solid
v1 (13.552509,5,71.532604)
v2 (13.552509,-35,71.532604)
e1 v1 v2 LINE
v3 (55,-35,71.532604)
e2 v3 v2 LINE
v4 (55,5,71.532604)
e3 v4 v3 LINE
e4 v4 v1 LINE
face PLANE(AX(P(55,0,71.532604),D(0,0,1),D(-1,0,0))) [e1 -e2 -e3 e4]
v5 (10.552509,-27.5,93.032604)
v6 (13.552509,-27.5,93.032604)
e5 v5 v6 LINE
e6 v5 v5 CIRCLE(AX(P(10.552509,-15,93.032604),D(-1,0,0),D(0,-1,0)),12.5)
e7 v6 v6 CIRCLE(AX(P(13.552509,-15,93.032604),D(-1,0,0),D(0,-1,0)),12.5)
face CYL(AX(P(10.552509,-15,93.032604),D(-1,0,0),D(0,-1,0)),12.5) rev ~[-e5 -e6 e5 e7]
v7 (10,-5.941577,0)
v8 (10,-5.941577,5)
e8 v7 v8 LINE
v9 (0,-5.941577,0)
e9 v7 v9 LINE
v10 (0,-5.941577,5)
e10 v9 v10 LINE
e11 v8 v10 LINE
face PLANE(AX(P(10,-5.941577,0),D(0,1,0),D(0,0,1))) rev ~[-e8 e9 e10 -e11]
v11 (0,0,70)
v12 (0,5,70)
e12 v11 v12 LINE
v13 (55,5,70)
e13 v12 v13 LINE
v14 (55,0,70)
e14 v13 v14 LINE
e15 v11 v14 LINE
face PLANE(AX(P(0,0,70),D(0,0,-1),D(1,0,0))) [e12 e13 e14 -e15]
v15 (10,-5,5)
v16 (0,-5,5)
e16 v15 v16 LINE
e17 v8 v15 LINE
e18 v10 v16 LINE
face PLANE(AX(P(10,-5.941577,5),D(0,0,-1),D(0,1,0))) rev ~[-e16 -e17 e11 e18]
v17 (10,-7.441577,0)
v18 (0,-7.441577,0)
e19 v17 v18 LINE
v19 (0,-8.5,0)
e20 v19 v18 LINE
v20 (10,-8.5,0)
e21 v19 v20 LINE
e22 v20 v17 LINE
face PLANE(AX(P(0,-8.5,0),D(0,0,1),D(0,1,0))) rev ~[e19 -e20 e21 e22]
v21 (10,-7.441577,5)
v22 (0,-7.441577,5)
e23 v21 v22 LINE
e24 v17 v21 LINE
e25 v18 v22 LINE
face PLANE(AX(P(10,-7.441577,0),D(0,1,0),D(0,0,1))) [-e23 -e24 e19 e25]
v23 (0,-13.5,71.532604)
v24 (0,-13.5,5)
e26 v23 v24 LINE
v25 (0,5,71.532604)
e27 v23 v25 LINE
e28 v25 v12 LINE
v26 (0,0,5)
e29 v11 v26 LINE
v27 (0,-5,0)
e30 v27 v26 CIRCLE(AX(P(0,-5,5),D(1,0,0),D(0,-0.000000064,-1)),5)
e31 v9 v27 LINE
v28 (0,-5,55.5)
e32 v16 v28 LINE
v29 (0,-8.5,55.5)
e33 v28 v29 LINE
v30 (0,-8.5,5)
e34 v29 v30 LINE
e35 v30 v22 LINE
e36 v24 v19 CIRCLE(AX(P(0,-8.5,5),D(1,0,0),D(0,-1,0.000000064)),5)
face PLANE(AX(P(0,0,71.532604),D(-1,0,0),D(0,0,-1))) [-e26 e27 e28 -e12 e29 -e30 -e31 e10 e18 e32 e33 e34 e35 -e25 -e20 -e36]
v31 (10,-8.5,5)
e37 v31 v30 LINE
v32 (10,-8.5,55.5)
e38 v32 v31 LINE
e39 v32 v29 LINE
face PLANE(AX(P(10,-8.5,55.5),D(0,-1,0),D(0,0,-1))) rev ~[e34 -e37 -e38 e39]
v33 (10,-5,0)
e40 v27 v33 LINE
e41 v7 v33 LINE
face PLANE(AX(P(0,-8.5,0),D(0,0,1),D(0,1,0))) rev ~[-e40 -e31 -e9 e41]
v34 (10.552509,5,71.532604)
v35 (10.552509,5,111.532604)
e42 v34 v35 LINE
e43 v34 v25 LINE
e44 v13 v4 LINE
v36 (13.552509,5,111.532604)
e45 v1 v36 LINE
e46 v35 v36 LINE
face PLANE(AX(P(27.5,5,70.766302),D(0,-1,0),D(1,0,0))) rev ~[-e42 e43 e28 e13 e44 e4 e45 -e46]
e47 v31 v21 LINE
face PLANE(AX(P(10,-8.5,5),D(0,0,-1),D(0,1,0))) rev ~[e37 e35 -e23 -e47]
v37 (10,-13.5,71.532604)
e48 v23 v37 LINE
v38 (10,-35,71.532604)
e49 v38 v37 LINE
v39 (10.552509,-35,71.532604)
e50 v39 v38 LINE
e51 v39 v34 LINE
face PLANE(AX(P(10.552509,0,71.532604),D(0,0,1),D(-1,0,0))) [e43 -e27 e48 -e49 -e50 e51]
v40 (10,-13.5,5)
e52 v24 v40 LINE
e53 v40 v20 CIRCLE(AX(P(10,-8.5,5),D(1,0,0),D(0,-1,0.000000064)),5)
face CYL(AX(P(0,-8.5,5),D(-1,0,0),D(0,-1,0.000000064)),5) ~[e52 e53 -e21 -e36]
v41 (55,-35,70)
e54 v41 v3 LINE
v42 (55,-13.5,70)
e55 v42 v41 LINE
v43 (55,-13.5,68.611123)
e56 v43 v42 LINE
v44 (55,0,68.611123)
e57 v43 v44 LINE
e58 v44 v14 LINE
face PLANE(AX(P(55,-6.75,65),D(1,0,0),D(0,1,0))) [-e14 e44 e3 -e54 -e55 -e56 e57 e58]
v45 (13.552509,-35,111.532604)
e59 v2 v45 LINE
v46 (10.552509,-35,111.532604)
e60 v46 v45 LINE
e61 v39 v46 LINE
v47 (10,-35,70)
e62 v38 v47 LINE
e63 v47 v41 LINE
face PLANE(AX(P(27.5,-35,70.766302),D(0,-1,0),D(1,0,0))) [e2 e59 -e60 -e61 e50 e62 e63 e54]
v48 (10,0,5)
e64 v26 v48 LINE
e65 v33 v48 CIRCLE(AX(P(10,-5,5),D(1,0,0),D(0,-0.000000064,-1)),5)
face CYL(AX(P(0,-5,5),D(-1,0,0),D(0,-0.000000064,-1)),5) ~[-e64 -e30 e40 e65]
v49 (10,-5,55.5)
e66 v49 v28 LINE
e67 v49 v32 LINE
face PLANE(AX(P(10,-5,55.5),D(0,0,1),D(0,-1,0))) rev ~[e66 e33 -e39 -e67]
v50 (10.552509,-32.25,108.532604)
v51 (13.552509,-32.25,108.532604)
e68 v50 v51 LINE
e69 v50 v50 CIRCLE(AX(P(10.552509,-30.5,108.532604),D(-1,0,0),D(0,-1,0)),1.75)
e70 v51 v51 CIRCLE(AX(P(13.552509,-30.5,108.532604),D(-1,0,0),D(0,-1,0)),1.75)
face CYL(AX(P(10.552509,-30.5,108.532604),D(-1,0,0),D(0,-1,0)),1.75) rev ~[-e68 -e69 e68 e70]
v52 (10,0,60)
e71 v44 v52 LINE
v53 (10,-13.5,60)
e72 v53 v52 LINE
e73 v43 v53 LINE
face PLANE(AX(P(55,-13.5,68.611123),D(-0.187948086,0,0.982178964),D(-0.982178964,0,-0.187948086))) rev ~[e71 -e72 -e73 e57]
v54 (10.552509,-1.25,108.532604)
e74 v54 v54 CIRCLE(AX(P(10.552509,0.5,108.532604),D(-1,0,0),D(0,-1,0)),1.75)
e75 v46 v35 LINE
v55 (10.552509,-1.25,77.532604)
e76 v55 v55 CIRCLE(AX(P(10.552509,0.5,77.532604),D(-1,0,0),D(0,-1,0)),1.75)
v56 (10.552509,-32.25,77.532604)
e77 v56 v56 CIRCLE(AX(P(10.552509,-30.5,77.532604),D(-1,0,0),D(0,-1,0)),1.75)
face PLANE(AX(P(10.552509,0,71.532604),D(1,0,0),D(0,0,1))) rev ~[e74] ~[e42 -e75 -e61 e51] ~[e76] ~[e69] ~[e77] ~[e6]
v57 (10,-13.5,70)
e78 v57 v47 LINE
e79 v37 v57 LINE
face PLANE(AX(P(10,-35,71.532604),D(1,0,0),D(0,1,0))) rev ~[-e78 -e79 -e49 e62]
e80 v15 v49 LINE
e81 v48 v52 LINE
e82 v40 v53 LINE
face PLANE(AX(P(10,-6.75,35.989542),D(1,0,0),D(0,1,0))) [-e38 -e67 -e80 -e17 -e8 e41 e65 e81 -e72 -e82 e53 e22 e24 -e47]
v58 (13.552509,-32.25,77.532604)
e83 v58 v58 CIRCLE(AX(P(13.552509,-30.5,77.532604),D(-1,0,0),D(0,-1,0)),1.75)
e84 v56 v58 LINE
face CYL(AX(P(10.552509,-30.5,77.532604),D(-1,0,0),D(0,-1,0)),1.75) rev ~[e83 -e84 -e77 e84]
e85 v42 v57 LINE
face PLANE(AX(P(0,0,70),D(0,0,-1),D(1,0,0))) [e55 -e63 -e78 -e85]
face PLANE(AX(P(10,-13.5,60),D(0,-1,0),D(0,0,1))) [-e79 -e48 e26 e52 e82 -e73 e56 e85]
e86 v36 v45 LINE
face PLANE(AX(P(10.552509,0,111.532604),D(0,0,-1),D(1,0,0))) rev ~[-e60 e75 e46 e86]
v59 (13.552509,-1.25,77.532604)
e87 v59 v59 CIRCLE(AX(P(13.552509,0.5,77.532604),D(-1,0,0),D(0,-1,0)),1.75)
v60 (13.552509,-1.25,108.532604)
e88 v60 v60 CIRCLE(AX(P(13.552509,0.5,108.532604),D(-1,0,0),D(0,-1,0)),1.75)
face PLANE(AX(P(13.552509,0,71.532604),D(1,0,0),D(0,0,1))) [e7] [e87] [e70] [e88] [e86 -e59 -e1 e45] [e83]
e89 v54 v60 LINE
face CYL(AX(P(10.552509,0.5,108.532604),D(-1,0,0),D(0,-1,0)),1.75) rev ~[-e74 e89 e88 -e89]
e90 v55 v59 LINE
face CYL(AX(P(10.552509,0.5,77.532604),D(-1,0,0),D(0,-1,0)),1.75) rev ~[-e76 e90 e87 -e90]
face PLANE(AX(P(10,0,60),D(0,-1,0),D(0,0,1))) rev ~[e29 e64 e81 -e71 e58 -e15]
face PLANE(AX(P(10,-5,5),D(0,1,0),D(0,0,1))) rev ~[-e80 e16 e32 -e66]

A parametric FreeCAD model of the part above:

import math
import FreeCAD as App
import Part
import Sketcher
from FreeCAD import Vector
Q = App.Units.Quantity

doc = App.newDocument("Part")
params = doc.addObject("Spreadsheet::Sheet", "Params")
for row, (alias, value) in enumerate([
    ("sketch1_radius", "5 mm"),
    ("sketch1_height", "65 mm"),
    ("sketch1_width", "3.5 mm"),
    ("pad1_length", "10 mm"),
    ("sketch2_height", "5 mm"),
    ("sketch2_width", "3.5 mm"),
    ("sketch2_width2", "1.5 mm"),
    ("sketch2_height2", "50.5 mm"),
    ("pocket1_length", "11 mm"),
    ("sketch3_width", "55 mm"),
    ("sketch3_width2", "3 mm"),
    ("sketch3_height", "40 mm"),
    ("pad2_length", "35 mm"),
    ("pad2_length2", "5 mm"),
    ("sketch4_height", "10 mm"),
    ("sketch4_width", "13.5 mm"),
    ("pad3_length", "45 mm"),
    ("sketch5_width", "45 mm"),
    ("pocket2_length", "15 mm"),
    ("sketch6_diameter", "25 mm"),
    ("sketch6_diameter2", "3.5 mm"),
    ("pocket3_length", "25 mm"),
    ("sketch7_width", "10 mm"),
    ("sketch7_height", "21.5 mm"),
    ("pocket4_length", "25 mm"),
], start=1):
    params.set(f"A{row}", alias)
    params.set(f"B{row}", "=" + value)
    params.setAlias(f"B{row}", alias)

body = doc.addObject("PartDesign::Body", "Body")

# Sketch on YZ plane
sketch1 = body.newObject("Sketcher::SketchObject", "Sketch")
sketch1.AttachmentSupport = (doc.getObject("YZ_Plane"), [""])
sketch1.MapMode = "FlatFace"
sketch1.addGeometry([
    Part.LineSegment(Vector(-8.5, 0, 0), Vector(-5, 0, 0)),  # 0
    Part.ArcOfCircle(Part.Circle(Vector(-5, 5, 0), Vector(0, 0, 1), 5), math.radians(-90), math.radians(0)),  # 1
    Part.LineSegment(Vector(0, 5, 0), Vector(0, 70, 0)),  # 2
    Part.LineSegment(Vector(0, 70, 0), Vector(-13.5, 70, 0)),  # 3
    Part.LineSegment(Vector(-13.5, 70, 0), Vector(-13.5, 5, 0)),  # 4
    Part.ArcOfCircle(Part.Circle(Vector(-8.5, 5, 0), Vector(0, 0, 1), 5), math.radians(180), math.radians(270)),  # 5
], False)
sketch1.addConstraint([
    Sketcher.Constraint("Tangent", 0, 2, 1, 1),
    Sketcher.Constraint("Tangent", 1, 2, 2, 1),
    Sketcher.Constraint("Coincident", 2, 2, 3, 1),
    Sketcher.Constraint("Coincident", 3, 2, 4, 1),
    Sketcher.Constraint("Tangent", 4, 2, 5, 1),
    Sketcher.Constraint("Tangent", 5, 2, 0, 1),
    Sketcher.Constraint("Horizontal", 0),
    Sketcher.Constraint("Vertical", 2),
    Sketcher.Constraint("Horizontal", 3),
    Sketcher.Constraint("Vertical", 4),
    Sketcher.Constraint("Equal", 1, 5),
    Sketcher.Constraint("PointOnObject", 0, 2, -1),
    Sketcher.Constraint("PointOnObject", 1, 2, -2),
    Sketcher.Constraint("Radius", 1, Q("5 mm")),
    Sketcher.Constraint("DistanceY", 2, 1, 2, 2, Q("65 mm")),
    Sketcher.Constraint("DistanceX", 0, 1, 0, 2, Q("3.5 mm")),
])
sketch1.setExpression("Constraints[13]", "Params.sketch1_radius")
sketch1.setExpression("Constraints[14]", "Params.sketch1_height")
sketch1.setExpression("Constraints[15]", "Params.sketch1_width")
pad1 = body.newObject("PartDesign::Pad", "Pad")
pad1.Profile = sketch1
pad1.setExpression("Length", "Params.pad1_length")

# Sketch on YZ plane
sketch2 = body.newObject("Sketcher::SketchObject", "Sketch001")
sketch2.AttachmentSupport = (doc.getObject("YZ_Plane"), [""])
sketch2.MapMode = "FlatFace"
sketch2.AttachmentOffset = App.Placement(Vector(0, 0, 10), App.Rotation())
sketch2.addGeometry([
    Part.LineSegment(Vector(-5, 55.5, 0), Vector(-8.5, 55.5, 0)),  # 0
    Part.LineSegment(Vector(-8.5, 55.5, 0), Vector(-8.5, 5, 0)),  # 1
    Part.LineSegment(Vector(-8.5, 5, 0), Vector(-7.4, 5, 0)),  # 2
    Part.LineSegment(Vector(-7.4, 5, 0), Vector(-7.4, 0, 0)),  # 3
    Part.LineSegment(Vector(-7.4, 0, 0), Vector(-5.9, 0, 0)),  # 4
    Part.LineSegment(Vector(-5.9, 0, 0), Vector(-5.9, 5, 0)),  # 5
    Part.LineSegment(Vector(-5.9, 5, 0), Vector(-5, 5, 0)),  # 6
    Part.LineSegment(Vector(-5, 5, 0), Vector(-5, 55.5, 0)),  # 7
], False)
sketch2.addConstraint([
    Sketcher.Constraint("Coincident", 0, 2, 1, 1),
    Sketcher.Constraint("Coincident", 1, 2, 2, 1),
    Sketcher.Constraint("Coincident", 2, 2, 3, 1),
    Sketcher.Constraint("Coincident", 3, 2, 4, 1),
    Sketcher.Constraint("Coincident", 4, 2, 5, 1),
    Sketcher.Constraint("Coincident", 5, 2, 6, 1),
    Sketcher.Constraint("Coincident", 6, 2, 7, 1),
    Sketcher.Constraint("Coincident", 7, 2, 0, 1),
    Sketcher.Constraint("Horizontal", 0),
    Sketcher.Constraint("Vertical", 1),
    Sketcher.Constraint("Horizontal", 2),
    Sketcher.Constraint("Vertical", 3),
    Sketcher.Constraint("Horizontal", 4),
    Sketcher.Constraint("Vertical", 5),
    Sketcher.Constraint("Horizontal", 6),
    Sketcher.Constraint("Vertical", 7),
    Sketcher.Constraint("PointOnObject", 3, 2, -1),
    Sketcher.Constraint("Horizontal", 2, 2, 5, 2),
    Sketcher.Constraint("DistanceY", 3, 2, 3, 1, Q("5 mm")),
    Sketcher.Constraint("DistanceX", 0, 2, 0, 1, Q("3.5 mm")),
    Sketcher.Constraint("DistanceX", 4, 1, 4, 2, Q("1.5 mm")),
    Sketcher.Constraint("DistanceY", 1, 2, 1, 1, Q("50.5 mm")),
    Sketcher.Constraint("DistanceX", 6, 2, -1, 1, Q("5 mm")),
    Sketcher.Constraint("DistanceX", 2, 1, 2, 2, Q("1.058423 mm")),
])
sketch2.setExpression("Constraints[18]", "Params.sketch2_height")
sketch2.setExpression("Constraints[19]", "Params.sketch2_width")
sketch2.setExpression("Constraints[20]", "Params.sketch2_width2")
sketch2.setExpression("Constraints[21]", "Params.sketch2_height2")
pocket1 = body.newObject("PartDesign::Pocket", "Pocket")
pocket1.Profile = sketch2
pocket1.setExpression("Length", "Params.pocket1_length")

# Sketch on XZ plane
sketch3 = body.newObject("Sketcher::SketchObject", "Sketch002")
sketch3.AttachmentSupport = (doc.getObject("XZ_Plane"), [""])
sketch3.MapMode = "FlatFace"
sketch3.addGeometry([
    Part.LineSegment(Vector(0, 71.5, 0), Vector(0, 70, 0)),  # 0
    Part.LineSegment(Vector(0, 70, 0), Vector(55, 70, 0)),  # 1
    Part.LineSegment(Vector(55, 70, 0), Vector(55, 71.5, 0)),  # 2
    Part.LineSegment(Vector(55, 71.5, 0), Vector(13.6, 71.5, 0)),  # 3
    Part.LineSegment(Vector(13.6, 71.5, 0), Vector(13.6, 111.5, 0)),  # 4
    Part.LineSegment(Vector(13.6, 111.5, 0), Vector(10.6, 111.5, 0)),  # 5
    Part.LineSegment(Vector(10.6, 111.5, 0), Vector(10.6, 71.5, 0)),  # 6
    Part.LineSegment(Vector(10.6, 71.5, 0), Vector(0, 71.5, 0)),  # 7
], False)
sketch3.addConstraint([
    Sketcher.Constraint("Coincident", 0, 2, 1, 1),
    Sketcher.Constraint("Coincident", 1, 2, 2, 1),
    Sketcher.Constraint("Coincident", 2, 2, 3, 1),
    Sketcher.Constraint("Coincident", 3, 2, 4, 1),
    Sketcher.Constraint("Coincident", 4, 2, 5, 1),
    Sketcher.Constraint("Coincident", 5, 2, 6, 1),
    Sketcher.Constraint("Coincident", 6, 2, 7, 1),
    Sketcher.Constraint("Coincident", 7, 2, 0, 1),
    Sketcher.Constraint("Vertical", 0),
    Sketcher.Constraint("Horizontal", 1),
    Sketcher.Constraint("Vertical", 2),
    Sketcher.Constraint("Horizontal", 3),
    Sketcher.Constraint("Vertical", 4),
    Sketcher.Constraint("Horizontal", 5),
    Sketcher.Constraint("Vertical", 6),
    Sketcher.Constraint("Horizontal", 7),
    Sketcher.Constraint("PointOnObject", 0, 2, -2),
    Sketcher.Constraint("Horizontal", 3, 2, 6, 2),
    Sketcher.Constraint("DistanceX", 1, 1, 1, 2, Q("55 mm")),
    Sketcher.Constraint("DistanceX", 5, 2, 5, 1, Q("3 mm")),
    Sketcher.Constraint("DistanceY", 4, 1, 4, 2, Q("40 mm")),
    Sketcher.Constraint("DistanceY", -1, 1, 0, 2, Q("70 mm")),
    Sketcher.Constraint("DistanceX", 3, 2, 3, 1, Q("41.447491 mm")),
    Sketcher.Constraint("DistanceY", 0, 2, 0, 1, Q("1.532604 mm")),
])
sketch3.setExpression("Constraints[18]", "Params.sketch3_width")
sketch3.setExpression("Constraints[19]", "Params.sketch3_width2")
sketch3.setExpression("Constraints[20]", "Params.sketch3_height")
pad2 = body.newObject("PartDesign::Pad", "Pad001")
pad2.Profile = sketch3
pad2.Type = "TwoLengths"
pad2.setExpression("Length", "Params.pad2_length")
pad2.setExpression("Length2", "Params.pad2_length2")

# Sketch on YZ plane
sketch4 = body.newObject("Sketcher::SketchObject", "Sketch003")
sketch4.AttachmentSupport = (doc.getObject("YZ_Plane"), [""])
sketch4.MapMode = "FlatFace"
sketch4.AttachmentOffset = App.Placement(Vector(0, 0, 10), App.Rotation())
sketch4.addGeometry([
    Part.LineSegment(Vector(-14, 70, 0), Vector(-14, 60, 0)),
    Part.LineSegment(Vector(-14, 60, 0), Vector(0, 60, 0)),
    Part.LineSegment(Vector(0, 60, 0), Vector(0, 70, 0)),
    Part.LineSegment(Vector(0, 70, 0), Vector(-14, 70, 0)),
], False)
sketch4.addConstraint([
    Sketcher.Constraint("Coincident", 0, 2, 1, 1),
    Sketcher.Constraint("Coincident", 1, 2, 2, 1),
    Sketcher.Constraint("Coincident", 2, 2, 3, 1),
    Sketcher.Constraint("Coincident", 3, 2, 0, 1),
    Sketcher.Constraint("Vertical", 0),
    Sketcher.Constraint("Horizontal", 1),
    Sketcher.Constraint("Vertical", 2),
    Sketcher.Constraint("Horizontal", 3),
    Sketcher.Constraint("PointOnObject", 1, 2, -2),
    Sketcher.Constraint("DistanceY", 0, 2, 0, 1, Q("10 mm")),
    Sketcher.Constraint("DistanceX", 1, 1, 1, 2, Q("13.5 mm")),
    Sketcher.Constraint("DistanceY", -1, 1, 0, 2, Q("60 mm")),
])
sketch4.setExpression("Constraints[9]", "Params.sketch4_height")
sketch4.setExpression("Constraints[10]", "Params.sketch4_width")
pad3 = body.newObject("PartDesign::Pad", "Pad002")
pad3.Profile = sketch4
pad3.setExpression("Length", "Params.pad3_length")

# Sketch on XZ plane
sketch5 = body.newObject("Sketcher::SketchObject", "Sketch004")
sketch5.AttachmentSupport = (doc.getObject("XZ_Plane"), [""])
sketch5.MapMode = "FlatFace"
sketch5.AttachmentOffset = App.Placement(Vector(0, 0, 13.5), App.Rotation())
sketch5.addGeometry([
    Part.LineSegment(Vector(55, 69, 0), Vector(10, 60, 0)),
    Part.LineSegment(Vector(10, 60, 0), Vector(55, 60, 0)),
    Part.LineSegment(Vector(55, 60, 0), Vector(55, 69, 0)),
], False)
sketch5.addConstraint([
    Sketcher.Constraint("Coincident", 0, 2, 1, 1),
    Sketcher.Constraint("Coincident", 1, 2, 2, 1),
    Sketcher.Constraint("Coincident", 2, 2, 0, 1),
    Sketcher.Constraint("Horizontal", 1),
    Sketcher.Constraint("Vertical", 2),
    Sketcher.Constraint("DistanceX", 1, 1, 1, 2, Q("45 mm")),
    Sketcher.Constraint("DistanceX", -1, 1, 0, 2, Q("10 mm")),
    Sketcher.Constraint("DistanceY", -1, 1, 0, 2, Q("60 mm")),
    Sketcher.Constraint("DistanceY", 2, 1, 2, 2, Q("8.611123 mm")),
])
sketch5.setExpression("Constraints[5]", "Params.sketch5_width")
pocket2 = body.newObject("PartDesign::Pocket", "Pocket001")
pocket2.Profile = sketch5
pocket2.setExpression("Length", "Params.pocket2_length")

# Sketch on YZ plane
sketch6 = body.newObject("Sketcher::SketchObject", "Sketch005")
sketch6.AttachmentSupport = (doc.getObject("YZ_Plane"), [""])
sketch6.MapMode = "FlatFace"
sketch6.AttachmentOffset = App.Placement(Vector(0, 0, 10.552509), App.Rotation())
sketch6.addGeometry([
    Part.Circle(Vector(0.5, 108.5, 0), Vector(0, 0, 1), 1.8),  # 0
    Part.Circle(Vector(-30.5, 108.5, 0), Vector(0, 0, 1), 1.8),  # 1
    Part.Circle(Vector(-30.5, 77.5, 0), Vector(0, 0, 1), 1.8),  # 2
    Part.Circle(Vector(0.5, 77.5, 0), Vector(0, 0, 1), 1.8),  # 3
    Part.Circle(Vector(-15, 93, 0), Vector(0, 0, 1), 12.5),  # 4
], False)
sketch6.addConstraint([
    Sketcher.Constraint("Equal", 0, 1),
    Sketcher.Constraint("Equal", 1, 2),
    Sketcher.Constraint("Equal", 2, 3),
    Sketcher.Constraint("Horizontal", 0, 3, 1, 3),
    Sketcher.Constraint("Horizontal", 2, 3, 3, 3),
    Sketcher.Constraint("Vertical", 1, 3, 2, 3),
    Sketcher.Constraint("Vertical", 0, 3, 3, 3),
    Sketcher.Constraint("Diameter", 4, Q("25 mm")),
    Sketcher.Constraint("Diameter", 0, Q("3.5 mm")),
    Sketcher.Constraint("DistanceX", 4, 3, -1, 1, Q("15 mm")),
    Sketcher.Constraint("DistanceX", 1, 3, 0, 3, Q("31 mm")),
    Sketcher.Constraint("DistanceY", 2, 3, 1, 3, Q("31 mm")),
    Sketcher.Constraint("DistanceX", -1, 1, 0, 3, Q("0.5 mm")),
    Sketcher.Constraint("DistanceY", 4, 3, 0, 3, Q("15.5 mm")),
    Sketcher.Constraint("DistanceY", -1, 1, 0, 3, Q("108.532604 mm")),
])
sketch6.setExpression("Constraints[7]", "Params.sketch6_diameter")
sketch6.setExpression("Constraints[8]", "Params.sketch6_diameter2")
pocket3 = body.newObject("PartDesign::Pocket", "Pocket002")
pocket3.Profile = sketch6
pocket3.setExpression("Length", "Params.pocket3_length")
pocket3.Reversed = True

# Sketch on XY plane
sketch7 = body.newObject("Sketcher::SketchObject", "Sketch006")
sketch7.AttachmentSupport = (doc.getObject("XY_Plane"), [""])
sketch7.MapMode = "FlatFace"
sketch7.AttachmentOffset = App.Placement(Vector(0, 0, 71.532604), App.Rotation())
sketch7.addGeometry([
    Part.LineSegment(Vector(0, -14, 0), Vector(0, -35, 0)),
    Part.LineSegment(Vector(0, -35, 0), Vector(10, -35, 0)),
    Part.LineSegment(Vector(10, -35, 0), Vector(10, -14, 0)),
    Part.LineSegment(Vector(10, -14, 0), Vector(0, -14, 0)),
], False)
sketch7.addConstraint([
    Sketcher.Constraint("Coincident", 0, 2, 1, 1),
    Sketcher.Constraint("Coincident", 1, 2, 2, 1),
    Sketcher.Constraint("Coincident", 2, 2, 3, 1),
    Sketcher.Constraint("Coincident", 3, 2, 0, 1),
    Sketcher.Constraint("Vertical", 0),
    Sketcher.Constraint("Horizontal", 1),
    Sketcher.Constraint("Vertical", 2),
    Sketcher.Constraint("Horizontal", 3),
    Sketcher.Constraint("PointOnObject", 0, 2, -2),
    Sketcher.Constraint("DistanceX", 1, 1, 1, 2, Q("10 mm")),
    Sketcher.Constraint("DistanceY", 0, 2, 0, 1, Q("21.5 mm")),
    Sketcher.Constraint("DistanceY", 0, 2, -1, 1, Q("35 mm")),
])
sketch7.setExpression("Constraints[9]", "Params.sketch7_width")
sketch7.setExpression("Constraints[10]", "Params.sketch7_height")
pocket4 = body.newObject("PartDesign::Pocket", "Pocket003")
pocket4.Profile = sketch7
pocket4.setExpression("Length", "Params.pocket4_length")

doc.recompute()
